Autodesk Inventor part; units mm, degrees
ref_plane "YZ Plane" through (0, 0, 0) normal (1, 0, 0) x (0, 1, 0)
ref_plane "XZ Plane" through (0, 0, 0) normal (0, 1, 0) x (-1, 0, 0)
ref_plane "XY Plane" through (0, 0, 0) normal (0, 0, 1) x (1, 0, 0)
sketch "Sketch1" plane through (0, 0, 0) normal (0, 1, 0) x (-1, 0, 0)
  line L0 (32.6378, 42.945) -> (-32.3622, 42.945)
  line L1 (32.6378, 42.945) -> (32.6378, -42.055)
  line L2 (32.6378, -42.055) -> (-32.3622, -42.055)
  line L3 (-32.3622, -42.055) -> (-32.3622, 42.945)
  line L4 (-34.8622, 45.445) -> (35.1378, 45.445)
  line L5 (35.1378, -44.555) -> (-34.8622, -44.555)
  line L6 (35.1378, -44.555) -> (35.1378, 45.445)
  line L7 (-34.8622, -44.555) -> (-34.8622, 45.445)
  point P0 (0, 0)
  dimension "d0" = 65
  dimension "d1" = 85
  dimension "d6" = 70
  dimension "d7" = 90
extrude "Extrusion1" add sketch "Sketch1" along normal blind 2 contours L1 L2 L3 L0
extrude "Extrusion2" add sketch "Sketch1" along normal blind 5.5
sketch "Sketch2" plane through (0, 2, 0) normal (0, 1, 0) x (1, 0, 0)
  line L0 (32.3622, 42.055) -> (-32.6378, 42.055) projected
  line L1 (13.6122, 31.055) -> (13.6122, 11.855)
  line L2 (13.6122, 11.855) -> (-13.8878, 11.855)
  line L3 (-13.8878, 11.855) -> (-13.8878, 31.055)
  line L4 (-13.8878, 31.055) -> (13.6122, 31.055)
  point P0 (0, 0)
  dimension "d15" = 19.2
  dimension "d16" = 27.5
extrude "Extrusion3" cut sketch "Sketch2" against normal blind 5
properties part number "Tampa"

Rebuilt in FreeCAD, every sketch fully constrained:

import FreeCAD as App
import Part
import Sketcher
Q = App.Units.Quantity

doc = App.newDocument("Part")
params = doc.addObject("Spreadsheet::Sheet", "Params")
for row, (alias, value) in enumerate([
    ("sketch1_width", "65 mm"),
    ("sketch1_height", "85 mm"),
    ("pad1_length", "2 mm"),
    ("sketch2_width", "70 mm"),
    ("sketch2_width2", "65 mm"),
    ("sketch2_height", "90 mm"),
    ("sketch2_height2", "85 mm"),
    ("pad2_length", "5.5 mm"),
    ("sketch3_width", "27.5 mm"),
    ("sketch3_height", "19.2 mm"),
    ("pocket1_length", "5 mm"),
], start=1):
    params.set(f"A{row}", alias)
    params.set(f"B{row}", "=" + value)
    params.setAlias(f"B{row}", alias)

body = doc.addObject("PartDesign::Body", "Body")

sketch1 = body.newObject("Sketcher::SketchObject", "Sketch")
sketch1.AttachmentSupport = (doc.getObject("XZ_Plane"), [""])
sketch1.MapMode = "FlatFace"
sketch1.addGeometry([
    Part.LineSegment(App.Vector(-32.6378, -42.055, 0), App.Vector(-32.6378, 42.945, 0)),
    Part.LineSegment(App.Vector(-32.6378, 42.945, 0), App.Vector(32.3622, 42.945, 0)),
    Part.LineSegment(App.Vector(32.3622, 42.945, 0), App.Vector(32.3622, -42.055, 0)),
    Part.LineSegment(App.Vector(32.3622, -42.055, 0), App.Vector(-32.6378, -42.055, 0)),
], False)
sketch1.addConstraint([
    Sketcher.Constraint("Coincident", 0, 2, 1, 1),
    Sketcher.Constraint("Coincident", 1, 2, 2, 1),
    Sketcher.Constraint("Coincident", 2, 2, 3, 1),
    Sketcher.Constraint("Coincident", 3, 2, 0, 1),
    Sketcher.Constraint("Vertical", 0),
    Sketcher.Constraint("Horizontal", 1),
    Sketcher.Constraint("Vertical", 2),
    Sketcher.Constraint("Horizontal", 3),
    Sketcher.Constraint("DistanceX", 1, 1, 1, 2, Q("65 mm")),
    Sketcher.Constraint("DistanceY", 0, 1, 0, 2, Q("85 mm")),
    Sketcher.Constraint("DistanceY", -1, 1, 0, 2, Q("42.945 mm")),
    Sketcher.Constraint("DistanceX", 0, 2, -1, 1, Q("32.6378 mm")),
])
sketch1.setExpression("Constraints[8]", "Params.sketch1_width")
sketch1.setExpression("Constraints[9]", "Params.sketch1_height")
pad1 = body.newObject("PartDesign::Pad", "Pad")
pad1.Profile = sketch1
pad1.setExpression("Length", "Params.pad1_length")
pad1.Reversed = True

sketch2 = body.newObject("Sketcher::SketchObject", "Sketch001")
sketch2.AttachmentSupport = (doc.getObject("XZ_Plane"), [""])
sketch2.MapMode = "FlatFace"
sketch2.addGeometry([
    Part.LineSegment(App.Vector(-35.1378, 45.445, 0), App.Vector(34.8622, 45.445, 0)),
    Part.LineSegment(App.Vector(34.8622, 45.445, 0), App.Vector(34.8622, -44.555, 0)),
    Part.LineSegment(App.Vector(34.8622, -44.555, 0), App.Vector(-35.1378, -44.555, 0)),
    Part.LineSegment(App.Vector(-35.1378, -44.555, 0), App.Vector(-35.1378, 45.445, 0)),
    Part.LineSegment(App.Vector(32.3622, 42.945, 0), App.Vector(-32.6378, 42.945, 0)),
    Part.LineSegment(App.Vector(-32.6378, 42.945, 0), App.Vector(-32.6378, -42.055, 0)),
    Part.LineSegment(App.Vector(-32.6378, -42.055, 0), App.Vector(32.3622, -42.055, 0)),
    Part.LineSegment(App.Vector(32.3622, -42.055, 0), App.Vector(32.3622, 42.945, 0)),
], False)
sketch2.addConstraint([
    Sketcher.Constraint("Coincident", 0, 2, 1, 1),
    Sketcher.Constraint("Coincident", 1, 2, 2, 1),
    Sketcher.Constraint("Coincident", 2, 2, 3, 1),
    Sketcher.Constraint("Coincident", 3, 2, 0, 1),
    Sketcher.Constraint("Coincident", 4, 2, 5, 1),
    Sketcher.Constraint("Coincident", 5, 2, 6, 1),
    Sketcher.Constraint("Coincident", 6, 2, 7, 1),
    Sketcher.Constraint("Coincident", 7, 2, 4, 1),
    Sketcher.Constraint("Horizontal", 0),
    Sketcher.Constraint("Vertical", 1),
    Sketcher.Constraint("Horizontal", 2),
    Sketcher.Constraint("Vertical", 3),
    Sketcher.Constraint("Horizontal", 4),
    Sketcher.Constraint("Vertical", 5),
    Sketcher.Constraint("Horizontal", 6),
    Sketcher.Constraint("Vertical", 7),
    Sketcher.Constraint("DistanceX", 0, 1, 0, 2, Q("70 mm")),
    Sketcher.Constraint("DistanceX", 4, 2, 4, 1, Q("65 mm")),
    Sketcher.Constraint("DistanceY", 1, 2, 1, 1, Q("90 mm")),
    Sketcher.Constraint("DistanceY", 5, 2, 5, 1, Q("85 mm")),
    Sketcher.Constraint("DistanceX", 3, 2, 4, 2, Q("2.5 mm")),
    Sketcher.Constraint("DistanceY", 4, 2, 3, 2, Q("2.5 mm")),
    Sketcher.Constraint("DistanceY", -1, 1, 0, 2, Q("45.445 mm")),
    Sketcher.Constraint("DistanceX", -1, 1, 0, 2, Q("34.8622 mm")),
])
sketch2.setExpression("Constraints[16]", "Params.sketch2_width")
sketch2.setExpression("Constraints[17]", "Params.sketch2_width2")
sketch2.setExpression("Constraints[18]", "Params.sketch2_height")
sketch2.setExpression("Constraints[19]", "Params.sketch2_height2")
pad2 = body.newObject("PartDesign::Pad", "Pad001")
pad2.Profile = sketch2
pad2.setExpression("Length", "Params.pad2_length")
pad2.Reversed = True

sketch3 = body.newObject("Sketcher::SketchObject", "Sketch002")
sketch3.AttachmentSupport = (doc.getObject("XZ_Plane"), [""])
sketch3.MapMode = "FlatFace"
sketch3.AttachmentOffset = App.Placement(App.Vector(0, 0, -2), App.Rotation())
sketch3.addGeometry([
    Part.LineSegment(App.Vector(13.6122, -11.855, 0), App.Vector(13.6122, -31.055, 0)),
    Part.LineSegment(App.Vector(13.6122, -31.055, 0), App.Vector(-13.8878, -31.055, 0)),
    Part.LineSegment(App.Vector(-13.8878, -31.055, 0), App.Vector(-13.8878, -11.855, 0)),
    Part.LineSegment(App.Vector(-13.8878, -11.855, 0), App.Vector(13.6122, -11.855, 0)),
], False)
sketch3.addConstraint([
    Sketcher.Constraint("Coincident", 0, 2, 1, 1),
    Sketcher.Constraint("Coincident", 1, 2, 2, 1),
    Sketcher.Constraint("Coincident", 2, 2, 3, 1),
    Sketcher.Constraint("Coincident", 3, 2, 0, 1),
    Sketcher.Constraint("Vertical", 0),
    Sketcher.Constraint("Horizontal", 1),
    Sketcher.Constraint("Vertical", 2),
    Sketcher.Constraint("Horizontal", 3),
    Sketcher.Constraint("DistanceX", 1, 2, 1, 1, Q("27.5 mm")),
    Sketcher.Constraint("DistanceY", 0, 2, 0, 1, Q("19.2 mm")),
    Sketcher.Constraint("DistanceY", 0, 2, -1, 1, Q("31.055 mm")),
    Sketcher.Constraint("DistanceX", -1, 1, 0, 2, Q("13.6122 mm")),
])
sketch3.setExpression("Constraints[8]", "Params.sketch3_width")
sketch3.setExpression("Constraints[9]", "Params.sketch3_height")
pocket1 = body.newObject("PartDesign::Pocket", "Pocket")
pocket1.Profile = sketch3
pocket1.setExpression("Length", "Params.pocket1_length")
pocket1.Reversed = True

doc.recompute()
